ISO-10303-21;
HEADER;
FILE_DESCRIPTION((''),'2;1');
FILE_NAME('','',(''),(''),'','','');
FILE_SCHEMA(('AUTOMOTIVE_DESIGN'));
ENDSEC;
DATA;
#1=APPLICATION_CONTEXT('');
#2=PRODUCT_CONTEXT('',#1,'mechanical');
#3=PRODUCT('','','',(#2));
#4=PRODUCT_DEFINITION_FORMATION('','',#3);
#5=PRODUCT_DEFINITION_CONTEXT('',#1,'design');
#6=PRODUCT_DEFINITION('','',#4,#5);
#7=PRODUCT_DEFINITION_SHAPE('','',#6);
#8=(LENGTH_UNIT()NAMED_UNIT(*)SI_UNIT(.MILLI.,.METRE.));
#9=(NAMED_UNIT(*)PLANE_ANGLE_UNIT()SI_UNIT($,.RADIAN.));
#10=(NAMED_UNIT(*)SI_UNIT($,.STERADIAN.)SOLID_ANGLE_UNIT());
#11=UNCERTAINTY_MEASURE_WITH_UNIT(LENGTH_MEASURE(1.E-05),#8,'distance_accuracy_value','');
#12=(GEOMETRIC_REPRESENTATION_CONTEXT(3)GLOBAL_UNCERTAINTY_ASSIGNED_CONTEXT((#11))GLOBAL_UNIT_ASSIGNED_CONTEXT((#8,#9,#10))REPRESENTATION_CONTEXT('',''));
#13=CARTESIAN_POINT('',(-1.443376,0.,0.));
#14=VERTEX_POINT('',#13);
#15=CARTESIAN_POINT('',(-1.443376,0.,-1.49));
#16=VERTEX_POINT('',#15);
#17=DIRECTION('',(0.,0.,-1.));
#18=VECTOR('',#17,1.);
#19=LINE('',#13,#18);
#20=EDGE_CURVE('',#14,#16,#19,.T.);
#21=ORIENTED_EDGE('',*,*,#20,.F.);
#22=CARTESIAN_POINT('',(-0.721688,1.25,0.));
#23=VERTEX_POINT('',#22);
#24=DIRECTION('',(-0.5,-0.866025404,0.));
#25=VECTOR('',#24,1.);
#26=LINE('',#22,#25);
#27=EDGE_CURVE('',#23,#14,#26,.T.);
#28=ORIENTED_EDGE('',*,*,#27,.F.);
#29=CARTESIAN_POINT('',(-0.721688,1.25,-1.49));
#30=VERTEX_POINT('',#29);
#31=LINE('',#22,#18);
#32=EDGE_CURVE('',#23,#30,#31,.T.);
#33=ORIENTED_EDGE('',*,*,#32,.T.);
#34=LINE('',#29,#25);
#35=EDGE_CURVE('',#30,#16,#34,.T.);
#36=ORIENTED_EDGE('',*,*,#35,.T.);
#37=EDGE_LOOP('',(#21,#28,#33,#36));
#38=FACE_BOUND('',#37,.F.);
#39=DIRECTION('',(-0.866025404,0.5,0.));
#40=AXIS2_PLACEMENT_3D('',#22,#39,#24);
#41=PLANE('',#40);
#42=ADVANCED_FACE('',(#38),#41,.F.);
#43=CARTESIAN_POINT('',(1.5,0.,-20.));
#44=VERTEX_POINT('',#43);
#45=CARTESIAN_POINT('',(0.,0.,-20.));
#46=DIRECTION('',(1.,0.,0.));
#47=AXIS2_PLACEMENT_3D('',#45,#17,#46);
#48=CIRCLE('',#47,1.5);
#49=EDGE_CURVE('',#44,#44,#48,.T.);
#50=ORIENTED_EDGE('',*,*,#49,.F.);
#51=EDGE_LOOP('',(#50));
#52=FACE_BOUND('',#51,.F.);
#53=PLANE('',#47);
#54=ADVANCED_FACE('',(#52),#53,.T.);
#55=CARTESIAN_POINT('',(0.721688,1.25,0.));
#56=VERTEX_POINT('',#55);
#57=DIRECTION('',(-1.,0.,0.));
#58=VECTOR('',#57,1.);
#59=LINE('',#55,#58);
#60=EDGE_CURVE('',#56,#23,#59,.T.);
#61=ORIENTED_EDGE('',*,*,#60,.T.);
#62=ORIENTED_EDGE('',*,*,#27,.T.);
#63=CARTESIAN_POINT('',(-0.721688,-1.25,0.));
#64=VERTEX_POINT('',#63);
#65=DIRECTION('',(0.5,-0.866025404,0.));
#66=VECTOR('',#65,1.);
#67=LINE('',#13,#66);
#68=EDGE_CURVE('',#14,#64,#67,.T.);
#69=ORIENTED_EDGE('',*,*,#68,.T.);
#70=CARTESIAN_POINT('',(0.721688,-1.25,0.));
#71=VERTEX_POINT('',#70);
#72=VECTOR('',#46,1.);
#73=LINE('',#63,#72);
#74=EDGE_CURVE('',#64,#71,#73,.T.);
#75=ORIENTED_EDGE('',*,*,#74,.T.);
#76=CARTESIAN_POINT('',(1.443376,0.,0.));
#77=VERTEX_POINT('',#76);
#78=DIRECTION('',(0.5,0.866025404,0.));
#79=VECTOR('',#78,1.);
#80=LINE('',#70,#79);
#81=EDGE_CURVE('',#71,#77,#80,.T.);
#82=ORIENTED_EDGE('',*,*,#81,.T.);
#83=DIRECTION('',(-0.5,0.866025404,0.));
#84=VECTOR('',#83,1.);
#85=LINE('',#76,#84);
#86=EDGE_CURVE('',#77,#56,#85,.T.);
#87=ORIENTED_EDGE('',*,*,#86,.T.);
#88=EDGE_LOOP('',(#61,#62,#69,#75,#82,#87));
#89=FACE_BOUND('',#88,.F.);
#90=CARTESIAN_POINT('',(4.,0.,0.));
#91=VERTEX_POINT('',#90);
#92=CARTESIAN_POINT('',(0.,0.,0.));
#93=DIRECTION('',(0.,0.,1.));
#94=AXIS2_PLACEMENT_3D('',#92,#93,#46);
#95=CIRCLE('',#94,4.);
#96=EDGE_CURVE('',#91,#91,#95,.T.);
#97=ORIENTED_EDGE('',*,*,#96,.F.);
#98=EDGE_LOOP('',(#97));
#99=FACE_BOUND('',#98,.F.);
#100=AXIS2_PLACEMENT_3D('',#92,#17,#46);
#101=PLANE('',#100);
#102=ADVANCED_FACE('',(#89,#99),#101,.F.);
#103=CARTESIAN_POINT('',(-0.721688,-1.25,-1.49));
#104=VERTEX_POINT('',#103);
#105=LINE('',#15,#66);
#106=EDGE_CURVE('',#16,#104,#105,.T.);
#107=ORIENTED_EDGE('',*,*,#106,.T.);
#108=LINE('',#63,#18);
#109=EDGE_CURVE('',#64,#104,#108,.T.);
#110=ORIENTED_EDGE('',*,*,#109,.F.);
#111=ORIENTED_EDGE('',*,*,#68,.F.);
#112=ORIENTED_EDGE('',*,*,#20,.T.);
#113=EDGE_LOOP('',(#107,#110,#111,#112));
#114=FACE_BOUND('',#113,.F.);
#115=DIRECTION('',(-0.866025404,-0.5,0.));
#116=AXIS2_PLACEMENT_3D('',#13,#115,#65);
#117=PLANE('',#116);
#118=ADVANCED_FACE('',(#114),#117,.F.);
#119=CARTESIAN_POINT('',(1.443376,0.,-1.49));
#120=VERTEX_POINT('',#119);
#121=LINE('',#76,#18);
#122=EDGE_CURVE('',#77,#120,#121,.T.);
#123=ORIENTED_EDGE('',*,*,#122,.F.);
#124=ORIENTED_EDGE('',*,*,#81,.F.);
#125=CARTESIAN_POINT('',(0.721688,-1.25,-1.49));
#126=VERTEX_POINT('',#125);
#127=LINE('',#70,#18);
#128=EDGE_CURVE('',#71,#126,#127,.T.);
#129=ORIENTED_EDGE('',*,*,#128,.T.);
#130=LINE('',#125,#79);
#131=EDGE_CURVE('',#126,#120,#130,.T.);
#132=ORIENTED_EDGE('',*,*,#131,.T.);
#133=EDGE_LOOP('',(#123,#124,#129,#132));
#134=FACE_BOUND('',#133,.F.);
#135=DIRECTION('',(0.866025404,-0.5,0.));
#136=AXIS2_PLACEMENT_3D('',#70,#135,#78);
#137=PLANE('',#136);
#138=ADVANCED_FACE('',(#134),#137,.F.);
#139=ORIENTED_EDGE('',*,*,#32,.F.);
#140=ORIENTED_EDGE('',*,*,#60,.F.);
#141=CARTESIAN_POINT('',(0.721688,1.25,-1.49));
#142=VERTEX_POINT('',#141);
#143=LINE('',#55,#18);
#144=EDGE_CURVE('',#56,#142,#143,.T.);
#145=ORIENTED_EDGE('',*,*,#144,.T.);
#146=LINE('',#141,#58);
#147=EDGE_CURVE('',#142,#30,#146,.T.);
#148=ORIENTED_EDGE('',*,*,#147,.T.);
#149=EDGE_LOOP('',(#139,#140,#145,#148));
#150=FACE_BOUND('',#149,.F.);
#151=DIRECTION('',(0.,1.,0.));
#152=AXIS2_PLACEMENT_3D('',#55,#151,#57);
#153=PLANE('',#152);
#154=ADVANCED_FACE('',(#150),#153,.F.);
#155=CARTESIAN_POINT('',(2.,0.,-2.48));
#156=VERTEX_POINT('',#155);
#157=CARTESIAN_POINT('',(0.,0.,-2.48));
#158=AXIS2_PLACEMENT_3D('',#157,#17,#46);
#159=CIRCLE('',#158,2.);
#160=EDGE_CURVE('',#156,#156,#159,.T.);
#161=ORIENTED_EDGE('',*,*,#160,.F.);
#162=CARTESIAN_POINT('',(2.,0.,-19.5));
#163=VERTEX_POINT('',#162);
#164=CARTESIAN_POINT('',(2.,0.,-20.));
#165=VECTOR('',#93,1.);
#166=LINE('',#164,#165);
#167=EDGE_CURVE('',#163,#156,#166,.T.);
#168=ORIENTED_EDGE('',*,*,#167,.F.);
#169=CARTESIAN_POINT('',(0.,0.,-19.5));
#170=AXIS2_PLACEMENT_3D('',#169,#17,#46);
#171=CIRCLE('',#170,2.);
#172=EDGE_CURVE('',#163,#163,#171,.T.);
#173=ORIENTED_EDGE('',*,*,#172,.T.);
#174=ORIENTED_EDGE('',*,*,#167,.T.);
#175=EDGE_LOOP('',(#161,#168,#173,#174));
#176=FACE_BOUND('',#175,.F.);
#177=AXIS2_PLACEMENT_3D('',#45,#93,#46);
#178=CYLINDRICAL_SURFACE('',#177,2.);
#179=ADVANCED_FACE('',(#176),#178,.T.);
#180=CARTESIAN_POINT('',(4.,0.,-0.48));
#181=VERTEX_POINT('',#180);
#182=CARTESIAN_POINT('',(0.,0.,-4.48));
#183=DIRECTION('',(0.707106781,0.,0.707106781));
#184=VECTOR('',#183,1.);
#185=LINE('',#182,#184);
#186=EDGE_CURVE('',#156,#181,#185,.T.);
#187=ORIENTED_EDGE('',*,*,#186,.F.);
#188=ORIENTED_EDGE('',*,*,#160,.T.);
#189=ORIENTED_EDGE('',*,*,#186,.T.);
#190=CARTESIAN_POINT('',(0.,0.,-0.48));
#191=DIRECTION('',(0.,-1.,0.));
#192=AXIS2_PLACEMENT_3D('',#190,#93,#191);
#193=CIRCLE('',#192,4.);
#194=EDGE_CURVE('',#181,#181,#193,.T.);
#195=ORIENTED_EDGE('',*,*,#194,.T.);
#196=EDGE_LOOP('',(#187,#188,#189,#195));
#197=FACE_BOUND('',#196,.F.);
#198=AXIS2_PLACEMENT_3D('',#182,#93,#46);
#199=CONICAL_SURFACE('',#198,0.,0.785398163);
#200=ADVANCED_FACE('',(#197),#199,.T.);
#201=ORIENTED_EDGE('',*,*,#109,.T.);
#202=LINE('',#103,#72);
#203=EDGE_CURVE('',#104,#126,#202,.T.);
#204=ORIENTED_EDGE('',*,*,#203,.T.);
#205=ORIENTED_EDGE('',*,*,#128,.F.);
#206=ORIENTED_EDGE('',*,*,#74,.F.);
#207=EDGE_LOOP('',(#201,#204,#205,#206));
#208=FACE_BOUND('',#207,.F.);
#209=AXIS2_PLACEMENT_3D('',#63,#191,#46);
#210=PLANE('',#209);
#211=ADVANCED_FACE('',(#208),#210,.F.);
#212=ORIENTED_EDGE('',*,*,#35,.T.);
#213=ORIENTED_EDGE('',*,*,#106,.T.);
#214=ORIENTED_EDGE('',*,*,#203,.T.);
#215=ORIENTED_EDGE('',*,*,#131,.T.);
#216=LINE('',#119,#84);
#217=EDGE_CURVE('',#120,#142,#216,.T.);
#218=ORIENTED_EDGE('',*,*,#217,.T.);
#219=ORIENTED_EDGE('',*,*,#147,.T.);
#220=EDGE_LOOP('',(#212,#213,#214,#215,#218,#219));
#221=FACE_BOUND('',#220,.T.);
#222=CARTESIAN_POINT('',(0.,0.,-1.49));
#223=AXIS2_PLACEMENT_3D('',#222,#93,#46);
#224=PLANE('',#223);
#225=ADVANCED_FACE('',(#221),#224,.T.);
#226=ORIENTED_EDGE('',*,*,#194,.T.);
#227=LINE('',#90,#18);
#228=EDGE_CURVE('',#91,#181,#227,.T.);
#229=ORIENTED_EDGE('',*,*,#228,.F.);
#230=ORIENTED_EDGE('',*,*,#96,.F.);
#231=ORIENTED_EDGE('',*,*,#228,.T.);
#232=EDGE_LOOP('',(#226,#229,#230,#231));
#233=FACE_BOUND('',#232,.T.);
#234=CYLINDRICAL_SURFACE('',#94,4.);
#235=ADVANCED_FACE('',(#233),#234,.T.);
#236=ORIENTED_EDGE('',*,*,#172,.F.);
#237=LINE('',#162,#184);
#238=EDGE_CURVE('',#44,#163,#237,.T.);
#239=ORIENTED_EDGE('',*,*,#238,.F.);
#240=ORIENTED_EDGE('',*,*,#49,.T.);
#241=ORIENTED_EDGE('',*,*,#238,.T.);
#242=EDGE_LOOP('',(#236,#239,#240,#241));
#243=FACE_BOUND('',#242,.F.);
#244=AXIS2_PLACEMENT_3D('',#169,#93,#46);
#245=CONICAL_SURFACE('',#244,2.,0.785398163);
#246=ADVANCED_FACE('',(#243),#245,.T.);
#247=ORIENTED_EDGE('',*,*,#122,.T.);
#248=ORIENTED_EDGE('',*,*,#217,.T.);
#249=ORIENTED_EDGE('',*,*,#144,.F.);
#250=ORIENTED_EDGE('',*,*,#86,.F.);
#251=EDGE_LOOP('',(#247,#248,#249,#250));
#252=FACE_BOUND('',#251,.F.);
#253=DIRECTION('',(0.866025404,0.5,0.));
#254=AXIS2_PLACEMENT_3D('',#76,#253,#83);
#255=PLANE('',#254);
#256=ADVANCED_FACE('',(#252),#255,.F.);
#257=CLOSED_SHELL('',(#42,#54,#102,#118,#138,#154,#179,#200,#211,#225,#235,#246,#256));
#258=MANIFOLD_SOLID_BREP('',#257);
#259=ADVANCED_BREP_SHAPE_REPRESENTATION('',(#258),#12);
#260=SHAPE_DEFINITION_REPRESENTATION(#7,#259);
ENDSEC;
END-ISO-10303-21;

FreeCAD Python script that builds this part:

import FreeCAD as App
import Part
import Sketcher

V = App.Vector
Q = App.Units.Quantity


def edges_at(feature, points):
    """Names of the edges that pass closest to the given points."""
    edges = feature.Shape.Edges
    near = lambda p: min(range(len(edges)), key=lambda i: edges[i].distToShape(Part.Vertex(*p))[0])
    return sorted({f"Edge{near(p) + 1}" for p in points})


def add_polygon(sketch, points):
    """Adds a closed chain of lines whose ends are joined by coincident constraints."""
    first, n = sketch.GeometryCount, len(points)
    for a, b in zip(points, points[1:] + points[:1]):
        sketch.addGeometry(Part.LineSegment(App.Vector(*a, 0), App.Vector(*b, 0)), False)
    for i in range(n):
        sketch.addConstraint(Sketcher.Constraint("Coincident", first + i, 2, first + (i + 1) % n, 1))

doc = App.newDocument("Part")
params = doc.addObject("Spreadsheet::Sheet", "Params")
for row, (alias, value) in enumerate([
    ("sketch1_width", "2 mm"),
    ("sketch1_height", "20 mm"),
    ("sketch1_width2", "4.48 mm"),
    ("revolution_angle", "360 deg"),
    ("chamfer_size", "0.5 mm"),
    ("sketch2_diameter", "8 mm"),
    ("sketch2_diameter2", "8.96 mm"),
    ("pocket1_length", "1.49 mm"),
], start=1):
    params.set(f"A{row}", alias)
    params.set(f"B{row}", "=" + value)
    params.setAlias(f"B{row}", alias)

body = doc.addObject("PartDesign::Body", "Body")

# Sketch on XZ plane
sketch1 = body.newObject("Sketcher::SketchObject", "Sketch")
sketch1.AttachmentSupport = (doc.getObject("XZ_Plane"), [""])
sketch1.MapMode = "FlatFace"
add_polygon(sketch1, [(4.48, 0), (0, 0), (0, -20), (2, -20), (2, -2.48)])  # lines 0-4
sketch1.addConstraint([
    Sketcher.Constraint("Horizontal", 0),
    Sketcher.Constraint("Vertical", 1),
    Sketcher.Constraint("Horizontal", 2),
    Sketcher.Constraint("Vertical", 3),
    Sketcher.Constraint("Coincident", 0, 2, -1, 1),
    Sketcher.Constraint("DistanceX", 2, 1, 2, 2, Q("2 mm")),
    Sketcher.Constraint("DistanceY", 1, 2, 1, 1, Q("20 mm")),
    Sketcher.Constraint("Angle", 4, Q("45 deg")),
    Sketcher.Constraint("DistanceX", 0, 2, 0, 1, Q("4.48 mm")),
])
sketch1.setExpression("Constraints[10]", "Params.sketch1_width")
sketch1.setExpression("Constraints[11]", "Params.sketch1_height")
sketch1.setExpression("Constraints[13]", "Params.sketch1_width2")
revolution = body.newObject("PartDesign::Revolution", "Revolution")
revolution.Profile = sketch1
revolution.ReferenceAxis = (sketch1, ["V_Axis"])
revolution.setExpression("Angle", "Params.revolution_angle")
doc.recompute()

chamfer = body.newObject("PartDesign::Chamfer", "Chamfer")
chamfer.Base = (revolution, edges_at(revolution, [(-2, 0, -20)]))
chamfer.setExpression("Size", "Params.chamfer_size")

# Sketch on XY plane
sketch2 = body.newObject("Sketcher::SketchObject", "Sketch001")
sketch2.AttachmentSupport = (doc.getObject("XY_Plane"), [""])
sketch2.MapMode = "FlatFace"
sketch2.addGeometry(Part.Circle(V(0, 0, 0), V(0, 0, 1), 4.48), False)  # 0
sketch2.addGeometry(Part.Circle(V(0, 0, 0), V(0, 0, 1), 4), False)  # 1
add_polygon(sketch2, [(0.721688, 1.25), (-0.721688, 1.25), (-1.443376, 0), (-0.721688, -1.25), (0.721688, -1.25), (1.443376, 0)])  # lines 2-7
sketch2.addConstraint([
    Sketcher.Constraint("Horizontal", 2),
    Sketcher.Constraint("Horizontal", 5),
    Sketcher.Constraint("Coincident", 0, 3, -1, 1),
    Sketcher.Constraint("Coincident", 1, 3, -1, 1),
    Sketcher.Constraint("Symmetric", 2, 2, 5, 2, -1, 1),
    Sketcher.Constraint("Symmetric", 3, 2, 6, 2, -1, 1),
    Sketcher.Constraint("PointOnObject", 3, 2, -1),
    Sketcher.Constraint("Parallel", 4, 7),
    Sketcher.Constraint("Vertical", 2, 2, 4, 2),
    Sketcher.Constraint("Diameter", 1, Q("8 mm")),
    Sketcher.Constraint("Diameter", 0, Q("8.96 mm")),
    Sketcher.Constraint("Angle", 3, Q("-120 deg")),
    Sketcher.Constraint("DistanceY", 4, 2, 2, 2, Q("2.5 mm")),
    Sketcher.Constraint("DistanceX", 2, 2, 2, 1, Q("1.443376 mm")),
])
sketch2.setExpression("Constraints[15]", "Params.sketch2_diameter")
sketch2.setExpression("Constraints[16]", "Params.sketch2_diameter2")
pocket1 = body.newObject("PartDesign::Pocket", "Pocket")
pocket1.Profile = sketch2
pocket1.setExpression("Length", "Params.pocket1_length")

doc.recompute()
